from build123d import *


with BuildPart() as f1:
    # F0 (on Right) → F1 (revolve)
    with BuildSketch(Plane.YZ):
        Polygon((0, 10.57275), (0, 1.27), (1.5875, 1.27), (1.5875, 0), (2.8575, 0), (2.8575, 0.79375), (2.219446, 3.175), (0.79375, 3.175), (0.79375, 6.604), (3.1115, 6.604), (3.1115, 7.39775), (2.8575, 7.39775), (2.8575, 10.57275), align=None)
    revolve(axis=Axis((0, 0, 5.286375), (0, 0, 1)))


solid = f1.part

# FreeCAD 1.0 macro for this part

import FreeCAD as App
import Part
import Sketcher

V = App.Vector
Q = App.Units.Quantity


def add_polygon(sketch, points):
    """Adds a closed chain of lines whose ends are joined by coincident constraints."""
    first, n = sketch.GeometryCount, len(points)
    for a, b in zip(points, points[1:] + points[:1]):
        sketch.addGeometry(Part.LineSegment(App.Vector(*a, 0), App.Vector(*b, 0)), False)
    for i in range(n):
        sketch.addConstraint(Sketcher.Constraint("Coincident", first + i, 2, first + (i + 1) % n, 1))

doc = App.newDocument("Part")
body = doc.addObject("PartDesign::Body", "Body")

# Sketch on YZ plane
sketch1 = body.newObject("Sketcher::SketchObject", "Sketch")
sketch1.AttachmentSupport = (doc.getObject("YZ_Plane"), [""])
sketch1.MapMode = "FlatFace"
add_polygon(sketch1, [(0, 10.57), (0, 1.27), (1.59, 1.27), (1.59, 0), (2.86, 0), (2.86, 0.79), (2.22, 3.17), (0.79, 3.17), (0.79, 6.6), (3.11, 6.6), (3.11, 7.4), (2.86, 7.4), (2.86, 10.57)])  # lines 0-12
sketch1.addConstraint(Sketcher.Constraint("Vertical", 0))
sketch1.addConstraint(Sketcher.Constraint("Horizontal", 1))
sketch1.addConstraint(Sketcher.Constraint("Vertical", 2))
sketch1.addConstraint(Sketcher.Constraint("Horizontal", 3))
sketch1.addConstraint(Sketcher.Constraint("Vertical", 4))
sketch1.addConstraint(Sketcher.Constraint("Horizontal", 6))
sketch1.addConstraint(Sketcher.Constraint("Vertical", 7))
sketch1.addConstraint(Sketcher.Constraint("Horizontal", 8))
sketch1.addConstraint(Sketcher.Constraint("Vertical", 9))
sketch1.addConstraint(Sketcher.Constraint("Horizontal", 10))
sketch1.addConstraint(Sketcher.Constraint("Vertical", 11))
sketch1.addConstraint(Sketcher.Constraint("Horizontal", 12))
sketch1.addConstraint(Sketcher.Constraint("PointOnObject", 0, 2, -2))
sketch1.addConstraint(Sketcher.Constraint("PointOnObject", 2, 2, -1))
sketch1.addConstraint(Sketcher.Constraint("Vertical", 4, 2, 10, 2))
sketch1.addConstraint(Sketcher.Constraint("Equal", 3, 2))
sketch1.addConstraint(Sketcher.Constraint("Equal", 4, 9))
sketch1.addConstraint(Sketcher.Constraint("Angle", 5, Q("105 deg")))
sketch1.addConstraint(Sketcher.Constraint("DistanceX", 3, 1, 3, 2, Q("0.05 in")))
sketch1.addConstraint(Sketcher.Constraint("DistanceX", 10, 2, 10, 1, Q("0.01 in")))
sketch1.addConstraint(Sketcher.Constraint("DistanceX", 1, 1, 1, 2, Q("0.0625 in")))
sketch1.addConstraint(Sketcher.Constraint("DistanceY", 4, 1, 4, 2, Q("0.03125 in")))
sketch1.addConstraint(Sketcher.Constraint("DistanceY", 7, 1, 7, 2, Q("0.135 in")))
sketch1.addConstraint(Sketcher.Constraint("DistanceY", 11, 1, 11, 2, Q("0.125 in")))
sketch1.addConstraint(Sketcher.Constraint("DistanceY", -1, 1, 7, 2, Q("0.26 in")))
sketch1.addConstraint(Sketcher.Constraint("DistanceX", -1, 1, 6, 2, Q("0.03125 in")))
revolution = body.newObject("PartDesign::Revolution", "Revolution")
revolution.Profile = sketch1
revolution.ReferenceAxis = (sketch1, ["V_Axis"])
revolution.Angle = 360

doc.recompute()
